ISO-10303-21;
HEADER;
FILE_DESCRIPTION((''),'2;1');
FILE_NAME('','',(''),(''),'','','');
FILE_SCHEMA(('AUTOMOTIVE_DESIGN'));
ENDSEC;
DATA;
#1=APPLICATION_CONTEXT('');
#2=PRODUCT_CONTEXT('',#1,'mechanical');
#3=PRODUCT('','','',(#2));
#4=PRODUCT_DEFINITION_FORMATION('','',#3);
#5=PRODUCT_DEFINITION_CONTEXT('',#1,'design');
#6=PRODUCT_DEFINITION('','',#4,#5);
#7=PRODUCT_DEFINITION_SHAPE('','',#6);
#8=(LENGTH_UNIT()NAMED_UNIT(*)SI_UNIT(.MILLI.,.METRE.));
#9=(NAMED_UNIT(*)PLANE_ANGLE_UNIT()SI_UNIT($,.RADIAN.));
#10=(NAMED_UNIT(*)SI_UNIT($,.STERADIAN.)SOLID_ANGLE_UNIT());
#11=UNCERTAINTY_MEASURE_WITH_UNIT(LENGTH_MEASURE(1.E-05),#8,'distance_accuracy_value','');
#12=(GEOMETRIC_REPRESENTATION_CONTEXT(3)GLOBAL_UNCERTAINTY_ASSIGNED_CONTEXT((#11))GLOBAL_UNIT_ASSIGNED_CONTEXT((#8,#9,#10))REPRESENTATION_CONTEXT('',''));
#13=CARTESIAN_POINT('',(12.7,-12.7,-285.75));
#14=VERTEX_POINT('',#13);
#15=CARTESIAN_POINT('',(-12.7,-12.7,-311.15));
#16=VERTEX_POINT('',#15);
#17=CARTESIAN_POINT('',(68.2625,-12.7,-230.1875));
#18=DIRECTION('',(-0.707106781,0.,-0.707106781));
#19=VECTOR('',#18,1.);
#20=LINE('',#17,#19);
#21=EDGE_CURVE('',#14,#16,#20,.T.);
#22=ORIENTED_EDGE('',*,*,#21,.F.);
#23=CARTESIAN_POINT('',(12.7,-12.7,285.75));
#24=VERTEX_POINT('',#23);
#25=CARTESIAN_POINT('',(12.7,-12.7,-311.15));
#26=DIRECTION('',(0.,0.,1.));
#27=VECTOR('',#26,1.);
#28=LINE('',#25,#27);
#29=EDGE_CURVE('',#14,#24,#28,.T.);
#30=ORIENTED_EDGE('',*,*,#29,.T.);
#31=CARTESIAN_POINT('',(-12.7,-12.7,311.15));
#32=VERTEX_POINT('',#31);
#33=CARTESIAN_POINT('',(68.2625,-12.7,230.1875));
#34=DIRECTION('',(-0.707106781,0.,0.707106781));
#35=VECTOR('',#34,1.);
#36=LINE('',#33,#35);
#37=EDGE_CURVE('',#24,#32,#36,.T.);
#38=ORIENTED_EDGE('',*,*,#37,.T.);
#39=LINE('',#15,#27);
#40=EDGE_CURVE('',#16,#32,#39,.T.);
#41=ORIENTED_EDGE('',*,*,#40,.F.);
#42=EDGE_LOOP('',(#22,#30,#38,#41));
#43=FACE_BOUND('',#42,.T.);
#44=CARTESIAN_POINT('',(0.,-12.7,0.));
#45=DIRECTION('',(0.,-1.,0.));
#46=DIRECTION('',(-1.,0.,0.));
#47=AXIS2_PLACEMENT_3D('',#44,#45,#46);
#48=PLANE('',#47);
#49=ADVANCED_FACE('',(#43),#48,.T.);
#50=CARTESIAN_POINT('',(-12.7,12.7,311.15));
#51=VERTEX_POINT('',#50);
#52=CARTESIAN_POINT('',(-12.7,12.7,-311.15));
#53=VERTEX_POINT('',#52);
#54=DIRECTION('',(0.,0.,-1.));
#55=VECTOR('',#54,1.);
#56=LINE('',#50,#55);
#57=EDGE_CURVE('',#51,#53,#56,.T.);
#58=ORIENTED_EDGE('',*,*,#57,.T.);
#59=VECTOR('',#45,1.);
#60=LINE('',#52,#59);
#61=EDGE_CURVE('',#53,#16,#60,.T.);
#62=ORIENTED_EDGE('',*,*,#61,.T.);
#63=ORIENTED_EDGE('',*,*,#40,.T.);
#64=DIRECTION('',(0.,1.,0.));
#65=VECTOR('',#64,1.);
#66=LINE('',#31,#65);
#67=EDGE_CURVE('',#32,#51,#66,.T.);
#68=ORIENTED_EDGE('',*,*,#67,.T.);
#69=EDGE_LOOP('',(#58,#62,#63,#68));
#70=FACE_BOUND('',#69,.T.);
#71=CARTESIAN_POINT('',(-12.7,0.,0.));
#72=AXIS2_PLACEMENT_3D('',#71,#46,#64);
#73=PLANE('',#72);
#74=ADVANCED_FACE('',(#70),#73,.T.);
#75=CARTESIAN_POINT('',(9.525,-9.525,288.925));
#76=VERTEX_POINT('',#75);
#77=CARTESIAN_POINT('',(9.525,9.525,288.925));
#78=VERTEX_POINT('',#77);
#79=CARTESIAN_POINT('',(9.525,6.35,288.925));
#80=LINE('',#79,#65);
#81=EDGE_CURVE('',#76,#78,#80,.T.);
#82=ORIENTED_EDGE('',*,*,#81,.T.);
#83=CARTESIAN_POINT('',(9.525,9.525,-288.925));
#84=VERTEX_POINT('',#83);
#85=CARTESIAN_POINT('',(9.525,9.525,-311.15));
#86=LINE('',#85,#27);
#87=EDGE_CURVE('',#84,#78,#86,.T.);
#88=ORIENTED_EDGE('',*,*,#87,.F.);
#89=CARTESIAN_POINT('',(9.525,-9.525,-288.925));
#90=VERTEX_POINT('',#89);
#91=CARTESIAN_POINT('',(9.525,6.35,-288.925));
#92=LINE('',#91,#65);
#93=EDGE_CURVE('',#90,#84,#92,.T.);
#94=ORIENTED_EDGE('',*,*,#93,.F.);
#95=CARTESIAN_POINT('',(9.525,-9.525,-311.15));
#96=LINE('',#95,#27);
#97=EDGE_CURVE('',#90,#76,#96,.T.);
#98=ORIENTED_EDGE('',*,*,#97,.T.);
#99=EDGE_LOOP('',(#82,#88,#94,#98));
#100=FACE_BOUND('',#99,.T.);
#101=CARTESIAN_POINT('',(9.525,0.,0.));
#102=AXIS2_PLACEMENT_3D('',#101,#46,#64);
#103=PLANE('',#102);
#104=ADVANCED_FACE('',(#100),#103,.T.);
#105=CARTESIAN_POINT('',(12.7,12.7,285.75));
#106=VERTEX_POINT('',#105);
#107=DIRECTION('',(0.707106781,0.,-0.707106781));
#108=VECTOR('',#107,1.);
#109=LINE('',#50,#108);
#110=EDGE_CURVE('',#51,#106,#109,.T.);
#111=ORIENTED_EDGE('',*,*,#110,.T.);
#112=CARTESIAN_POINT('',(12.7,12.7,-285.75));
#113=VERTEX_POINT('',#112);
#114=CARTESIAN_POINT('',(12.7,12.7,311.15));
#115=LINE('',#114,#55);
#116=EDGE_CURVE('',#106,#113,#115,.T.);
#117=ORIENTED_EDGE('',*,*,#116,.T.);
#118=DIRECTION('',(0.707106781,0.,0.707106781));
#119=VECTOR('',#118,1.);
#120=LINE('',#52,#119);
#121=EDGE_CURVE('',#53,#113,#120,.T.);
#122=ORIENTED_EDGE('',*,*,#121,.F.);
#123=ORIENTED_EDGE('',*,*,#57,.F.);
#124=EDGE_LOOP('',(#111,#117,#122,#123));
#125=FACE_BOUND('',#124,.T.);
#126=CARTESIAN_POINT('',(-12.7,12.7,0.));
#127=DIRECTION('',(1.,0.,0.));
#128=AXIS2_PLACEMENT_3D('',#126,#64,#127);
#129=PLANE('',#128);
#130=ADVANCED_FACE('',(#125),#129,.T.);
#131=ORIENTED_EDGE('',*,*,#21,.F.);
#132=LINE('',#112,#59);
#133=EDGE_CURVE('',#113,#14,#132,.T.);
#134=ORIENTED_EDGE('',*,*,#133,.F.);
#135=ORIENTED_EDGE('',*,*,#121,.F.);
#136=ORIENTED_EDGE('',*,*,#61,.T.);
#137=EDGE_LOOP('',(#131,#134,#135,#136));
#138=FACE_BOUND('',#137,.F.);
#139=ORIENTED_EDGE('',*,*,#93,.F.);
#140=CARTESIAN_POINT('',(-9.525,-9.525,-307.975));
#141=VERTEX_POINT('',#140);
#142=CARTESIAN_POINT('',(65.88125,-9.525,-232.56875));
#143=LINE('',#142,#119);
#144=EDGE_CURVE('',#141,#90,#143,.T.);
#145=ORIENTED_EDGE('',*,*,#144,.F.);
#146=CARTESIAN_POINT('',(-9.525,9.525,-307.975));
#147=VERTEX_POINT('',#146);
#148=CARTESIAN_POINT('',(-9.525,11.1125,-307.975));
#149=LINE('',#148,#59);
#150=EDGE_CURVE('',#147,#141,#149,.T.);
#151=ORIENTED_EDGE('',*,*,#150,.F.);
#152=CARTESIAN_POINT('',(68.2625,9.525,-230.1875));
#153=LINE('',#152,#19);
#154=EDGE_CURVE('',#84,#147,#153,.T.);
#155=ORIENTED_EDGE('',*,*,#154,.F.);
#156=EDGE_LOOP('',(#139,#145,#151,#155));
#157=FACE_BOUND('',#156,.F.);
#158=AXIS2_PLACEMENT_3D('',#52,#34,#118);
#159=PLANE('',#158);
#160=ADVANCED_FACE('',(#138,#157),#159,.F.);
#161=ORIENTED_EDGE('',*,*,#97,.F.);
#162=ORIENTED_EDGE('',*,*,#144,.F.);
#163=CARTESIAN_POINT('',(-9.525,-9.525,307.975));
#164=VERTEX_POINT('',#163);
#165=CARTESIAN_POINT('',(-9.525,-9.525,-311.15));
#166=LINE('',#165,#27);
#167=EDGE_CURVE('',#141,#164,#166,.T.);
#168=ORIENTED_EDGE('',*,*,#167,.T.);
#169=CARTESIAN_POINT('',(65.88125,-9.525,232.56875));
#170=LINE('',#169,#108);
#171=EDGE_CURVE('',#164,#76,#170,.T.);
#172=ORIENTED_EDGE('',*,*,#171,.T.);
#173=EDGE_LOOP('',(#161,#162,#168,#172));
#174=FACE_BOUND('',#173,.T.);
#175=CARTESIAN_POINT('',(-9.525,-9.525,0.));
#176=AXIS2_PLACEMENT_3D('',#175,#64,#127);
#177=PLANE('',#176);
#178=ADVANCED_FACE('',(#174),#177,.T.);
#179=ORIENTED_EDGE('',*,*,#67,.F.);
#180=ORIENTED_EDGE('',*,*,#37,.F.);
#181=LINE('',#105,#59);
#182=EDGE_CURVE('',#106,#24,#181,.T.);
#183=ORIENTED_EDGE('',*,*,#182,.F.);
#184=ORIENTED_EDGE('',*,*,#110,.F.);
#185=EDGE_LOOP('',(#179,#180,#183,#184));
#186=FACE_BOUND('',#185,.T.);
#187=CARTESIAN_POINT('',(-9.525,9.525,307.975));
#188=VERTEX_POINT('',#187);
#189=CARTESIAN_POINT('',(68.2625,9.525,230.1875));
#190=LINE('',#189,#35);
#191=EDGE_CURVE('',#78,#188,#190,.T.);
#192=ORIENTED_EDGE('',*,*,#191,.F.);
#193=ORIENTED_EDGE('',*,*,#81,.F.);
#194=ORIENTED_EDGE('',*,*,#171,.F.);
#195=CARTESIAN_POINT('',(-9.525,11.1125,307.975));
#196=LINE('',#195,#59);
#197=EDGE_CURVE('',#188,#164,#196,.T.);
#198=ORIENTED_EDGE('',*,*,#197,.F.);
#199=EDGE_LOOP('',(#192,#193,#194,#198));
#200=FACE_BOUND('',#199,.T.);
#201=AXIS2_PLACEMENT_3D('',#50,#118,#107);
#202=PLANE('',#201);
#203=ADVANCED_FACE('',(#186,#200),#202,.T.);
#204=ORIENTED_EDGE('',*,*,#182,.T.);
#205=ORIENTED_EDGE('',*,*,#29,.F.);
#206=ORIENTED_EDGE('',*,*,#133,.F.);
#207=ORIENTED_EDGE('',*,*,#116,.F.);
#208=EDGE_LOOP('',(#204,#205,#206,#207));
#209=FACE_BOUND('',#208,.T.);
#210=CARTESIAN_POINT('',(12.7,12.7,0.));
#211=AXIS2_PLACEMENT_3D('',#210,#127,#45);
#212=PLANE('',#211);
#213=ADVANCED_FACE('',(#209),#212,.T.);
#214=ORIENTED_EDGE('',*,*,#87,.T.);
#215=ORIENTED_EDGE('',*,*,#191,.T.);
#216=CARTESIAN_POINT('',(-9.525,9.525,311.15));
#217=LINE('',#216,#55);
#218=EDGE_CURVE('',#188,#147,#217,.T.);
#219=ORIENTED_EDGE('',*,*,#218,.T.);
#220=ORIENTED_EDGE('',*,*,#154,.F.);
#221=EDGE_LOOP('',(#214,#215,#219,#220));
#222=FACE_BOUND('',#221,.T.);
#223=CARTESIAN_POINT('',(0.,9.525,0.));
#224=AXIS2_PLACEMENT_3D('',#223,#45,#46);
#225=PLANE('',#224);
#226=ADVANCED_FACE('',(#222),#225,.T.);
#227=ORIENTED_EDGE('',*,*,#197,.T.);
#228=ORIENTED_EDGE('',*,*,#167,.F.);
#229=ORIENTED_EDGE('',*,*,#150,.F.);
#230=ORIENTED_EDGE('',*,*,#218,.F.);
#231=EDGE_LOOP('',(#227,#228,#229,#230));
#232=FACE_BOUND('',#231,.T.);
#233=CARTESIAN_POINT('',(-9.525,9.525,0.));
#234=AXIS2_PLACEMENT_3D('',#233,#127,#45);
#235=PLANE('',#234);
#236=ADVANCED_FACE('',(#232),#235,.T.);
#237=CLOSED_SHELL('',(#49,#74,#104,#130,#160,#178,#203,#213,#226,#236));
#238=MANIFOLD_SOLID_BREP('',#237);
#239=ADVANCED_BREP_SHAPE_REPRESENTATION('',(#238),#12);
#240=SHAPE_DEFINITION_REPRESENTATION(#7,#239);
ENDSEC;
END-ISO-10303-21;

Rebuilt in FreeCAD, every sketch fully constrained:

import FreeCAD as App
import Part
import Sketcher
Q = App.Units.Quantity


def add_polygon(sketch, points):
    """Adds a closed chain of lines whose ends are joined by coincident constraints."""
    first, n = sketch.GeometryCount, len(points)
    for a, b in zip(points, points[1:] + points[:1]):
        sketch.addGeometry(Part.LineSegment(App.Vector(*a, 0), App.Vector(*b, 0)), False)
    for i in range(n):
        sketch.addConstraint(Sketcher.Constraint("Coincident", first + i, 2, first + (i + 1) % n, 1))

doc = App.newDocument("Part")
params = doc.addObject("Spreadsheet::Sheet", "Params")
for row, (alias, value) in enumerate([
    ("sketch1_width", "1 in"),
    ("pad1_length", "24.5 in"),
    ("sketch2_width", "1 in"),
], start=1):
    params.set(f"A{row}", alias)
    params.set(f"B{row}", "=" + value)
    params.setAlias(f"B{row}", alias)

body = doc.addObject("PartDesign::Body", "Body")

# Sketch on XY plane
sketch1 = body.newObject("Sketcher::SketchObject", "Sketch")
sketch1.AttachmentSupport = (doc.getObject("XY_Plane"), [""])
sketch1.MapMode = "FlatFace"
add_polygon(sketch1, [(-13, 13), (-13, -13), (13, -13), (13, 13)])  # lines 0-3
add_polygon(sketch1, [(-10, 10), (10, 10), (10, -10), (-10, -10)])  # lines 4-7
sketch1.addConstraint([
    Sketcher.Constraint("Vertical", 0),
    Sketcher.Constraint("Horizontal", 1),
    Sketcher.Constraint("Vertical", 2),
    Sketcher.Constraint("Horizontal", 3),
    Sketcher.Constraint("Horizontal", 4),
    Sketcher.Constraint("Vertical", 5),
    Sketcher.Constraint("Horizontal", 6),
    Sketcher.Constraint("Vertical", 7),
    Sketcher.Constraint("Symmetric", 0, 2, 2, 2, -1, 1),
    Sketcher.Constraint("Symmetric", 4, 2, 6, 2, -1, 1),
    Sketcher.Constraint("Equal", 3, 0),
    Sketcher.Constraint("Equal", 6, 5),
    Sketcher.Constraint("DistanceX", 1, 1, 1, 2, Q("1 in")),
    Sketcher.Constraint("DistanceX", 4, 2, 2, 2, Q("0.125 in")),
])
sketch1.setExpression("Constraints[20]", "Params.sketch1_width")
pad1 = body.newObject("PartDesign::Pad", "Pad")
pad1.Profile = sketch1
pad1.setExpression("Length", "Params.pad1_length")
pad1.Midplane = True

# Sketch on XZ plane
sketch2 = body.newObject("Sketcher::SketchObject", "Sketch001")
sketch2.AttachmentSupport = (doc.getObject("XZ_Plane"), [""])
sketch2.MapMode = "FlatFace"
sketch2.AttachmentOffset = App.Placement(App.Vector(0, 0, -0.5 * 25.4), App.Rotation())
add_polygon(sketch2, [(13, 286), (-13, 311), (13, 311)])  # lines 0-2
add_polygon(sketch2, [(13, -311), (-13, -311), (13, -286)])  # lines 3-5
sketch2.addConstraint([
    Sketcher.Constraint("Horizontal", 1),
    Sketcher.Constraint("Vertical", 2),
    Sketcher.Constraint("Horizontal", 3),
    Sketcher.Constraint("Vertical", 5),
    Sketcher.Constraint("Symmetric", 1, 2, 3, 2, -1, 1),
    Sketcher.Constraint("Symmetric", 2, 2, 4, 2, -1),
    Sketcher.Constraint("Perpendicular", 0, 4),
    Sketcher.Constraint("Vertical", 0, 2, 3, 2),
    Sketcher.Constraint("DistanceX", 1, 1, 1, 2, Q("1 in")),
    Sketcher.Constraint("DistanceY", 3, 2, 2, 2, Q("23.5 in")),
])
sketch2.setExpression("Constraints[14]", "Params.sketch2_width")
pocket1 = body.newObject("PartDesign::Pocket", "Pocket")
pocket1.Profile = sketch2
pocket1.Type = "ThroughAll"
pocket1.Reversed = True

doc.recompute()
